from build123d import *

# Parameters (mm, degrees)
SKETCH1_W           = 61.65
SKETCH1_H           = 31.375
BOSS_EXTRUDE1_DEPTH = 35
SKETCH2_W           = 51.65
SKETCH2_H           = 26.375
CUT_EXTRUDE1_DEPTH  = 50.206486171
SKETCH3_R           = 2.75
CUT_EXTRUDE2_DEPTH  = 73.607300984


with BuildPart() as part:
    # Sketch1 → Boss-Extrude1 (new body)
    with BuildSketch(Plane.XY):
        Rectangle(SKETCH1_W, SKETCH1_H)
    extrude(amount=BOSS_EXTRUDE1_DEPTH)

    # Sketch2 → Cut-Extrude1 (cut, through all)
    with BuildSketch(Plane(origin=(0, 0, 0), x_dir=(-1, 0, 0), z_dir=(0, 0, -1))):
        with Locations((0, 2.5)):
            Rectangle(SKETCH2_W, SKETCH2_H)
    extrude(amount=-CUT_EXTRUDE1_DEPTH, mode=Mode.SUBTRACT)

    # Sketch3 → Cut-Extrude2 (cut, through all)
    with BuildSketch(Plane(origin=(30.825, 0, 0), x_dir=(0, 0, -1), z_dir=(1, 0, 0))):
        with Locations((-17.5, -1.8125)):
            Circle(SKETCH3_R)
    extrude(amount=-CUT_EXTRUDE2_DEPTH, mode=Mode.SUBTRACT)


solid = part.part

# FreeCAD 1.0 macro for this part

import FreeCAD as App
import Part
import Sketcher
Q = App.Units.Quantity

doc = App.newDocument("Part")
body = doc.addObject("PartDesign::Body", "Body")

# Sketch on XY plane
sketch1 = doc.addObject("Sketcher::SketchObject", "Sketch")
body.addObject(sketch1)
sketch1.AttachmentSupport = (doc.XY_Plane, [""])
sketch1.MapMode = "FlatFace"
sketch1.addGeometry([
    Part.LineSegment(App.Vector(-31, 16, 0), App.Vector(-31, -16, 0)),
    Part.LineSegment(App.Vector(-31, -16, 0), App.Vector(31, -16, 0)),
    Part.LineSegment(App.Vector(31, -16, 0), App.Vector(31, 16, 0)),
    Part.LineSegment(App.Vector(31, 16, 0), App.Vector(-31, 16, 0)),
], False)
sketch1.addConstraint([
    Sketcher.Constraint("Coincident", 0, 2, 1, 1),
    Sketcher.Constraint("Coincident", 1, 2, 2, 1),
    Sketcher.Constraint("Coincident", 2, 2, 3, 1),
    Sketcher.Constraint("Coincident", 3, 2, 0, 1),
    Sketcher.Constraint("Vertical", 0),
    Sketcher.Constraint("Horizontal", 1),
    Sketcher.Constraint("Vertical", 2),
    Sketcher.Constraint("Horizontal", 3),
    Sketcher.Constraint("Symmetric", 0, 2, 2, 2, -1, 1),
    Sketcher.Constraint("DistanceX", 1, 1, 1, 2, Q("61.65 mm")),
    Sketcher.Constraint("DistanceY", 0, 2, 0, 1, Q("31.375 mm")),
])
pad1 = doc.addObject("PartDesign::Pad", "Pad")
body.addObject(pad1)
pad1.Profile = sketch1
pad1.Length = 35

# Sketch on XY plane
sketch2 = doc.addObject("Sketcher::SketchObject", "Sketch001")
body.addObject(sketch2)
sketch2.AttachmentSupport = (doc.XY_Plane, [""])
sketch2.MapMode = "FlatFace"
sketch2.addGeometry([
    Part.LineSegment(App.Vector(26, 16, 0), App.Vector(26, -11, 0)),
    Part.LineSegment(App.Vector(26, -11, 0), App.Vector(-26, -11, 0)),
    Part.LineSegment(App.Vector(-26, -11, 0), App.Vector(-26, 16, 0)),
    Part.LineSegment(App.Vector(-26, 16, 0), App.Vector(26, 16, 0)),
], False)
sketch2.addConstraint([
    Sketcher.Constraint("Coincident", 0, 2, 1, 1),
    Sketcher.Constraint("Coincident", 1, 2, 2, 1),
    Sketcher.Constraint("Coincident", 2, 2, 3, 1),
    Sketcher.Constraint("Coincident", 3, 2, 0, 1),
    Sketcher.Constraint("Vertical", 0),
    Sketcher.Constraint("Horizontal", 1),
    Sketcher.Constraint("Vertical", 2),
    Sketcher.Constraint("Horizontal", 3),
    Sketcher.Constraint("DistanceX", 1, 2, 1, 1, Q("51.65 mm")),
    Sketcher.Constraint("DistanceY", 0, 2, 0, 1, Q("26.375 mm")),
    Sketcher.Constraint("DistanceX", -1, 1, 0, 2, Q("25.825 mm")),
    Sketcher.Constraint("DistanceY", 0, 2, -1, 1, Q("10.6875 mm")),
])
pocket1 = doc.addObject("PartDesign::Pocket", "Pocket")
body.addObject(pocket1)
pocket1.Profile = sketch2
pocket1.Type = "ThroughAll"
pocket1.Reversed = True

# Sketch on YZ plane
sketch3 = doc.addObject("Sketcher::SketchObject", "Sketch002")
body.addObject(sketch3)
sketch3.AttachmentSupport = (doc.YZ_Plane, [""])
sketch3.MapMode = "FlatFace"
sketch3.AttachmentOffset = App.Placement(App.Vector(0, 0, 30.825), App.Rotation())
sketch3.addGeometry(Part.Circle(App.Vector(-1.8, 17.5, 0), App.Vector(0, 0, 1), 2.8), False)
sketch3.addConstraint([
    Sketcher.Constraint("Diameter", 0, Q("5.5 mm")),
    Sketcher.Constraint("DistanceY", -1, 1, 0, 3, Q("17.5 mm")),
    Sketcher.Constraint("DistanceX", 0, 3, -1, 1, Q("1.8125 mm")),
])
pocket2 = doc.addObject("PartDesign::Pocket", "Pocket001")
body.addObject(pocket2)
pocket2.Profile = sketch3
pocket2.Type = "ThroughAll"

doc.recompute()
